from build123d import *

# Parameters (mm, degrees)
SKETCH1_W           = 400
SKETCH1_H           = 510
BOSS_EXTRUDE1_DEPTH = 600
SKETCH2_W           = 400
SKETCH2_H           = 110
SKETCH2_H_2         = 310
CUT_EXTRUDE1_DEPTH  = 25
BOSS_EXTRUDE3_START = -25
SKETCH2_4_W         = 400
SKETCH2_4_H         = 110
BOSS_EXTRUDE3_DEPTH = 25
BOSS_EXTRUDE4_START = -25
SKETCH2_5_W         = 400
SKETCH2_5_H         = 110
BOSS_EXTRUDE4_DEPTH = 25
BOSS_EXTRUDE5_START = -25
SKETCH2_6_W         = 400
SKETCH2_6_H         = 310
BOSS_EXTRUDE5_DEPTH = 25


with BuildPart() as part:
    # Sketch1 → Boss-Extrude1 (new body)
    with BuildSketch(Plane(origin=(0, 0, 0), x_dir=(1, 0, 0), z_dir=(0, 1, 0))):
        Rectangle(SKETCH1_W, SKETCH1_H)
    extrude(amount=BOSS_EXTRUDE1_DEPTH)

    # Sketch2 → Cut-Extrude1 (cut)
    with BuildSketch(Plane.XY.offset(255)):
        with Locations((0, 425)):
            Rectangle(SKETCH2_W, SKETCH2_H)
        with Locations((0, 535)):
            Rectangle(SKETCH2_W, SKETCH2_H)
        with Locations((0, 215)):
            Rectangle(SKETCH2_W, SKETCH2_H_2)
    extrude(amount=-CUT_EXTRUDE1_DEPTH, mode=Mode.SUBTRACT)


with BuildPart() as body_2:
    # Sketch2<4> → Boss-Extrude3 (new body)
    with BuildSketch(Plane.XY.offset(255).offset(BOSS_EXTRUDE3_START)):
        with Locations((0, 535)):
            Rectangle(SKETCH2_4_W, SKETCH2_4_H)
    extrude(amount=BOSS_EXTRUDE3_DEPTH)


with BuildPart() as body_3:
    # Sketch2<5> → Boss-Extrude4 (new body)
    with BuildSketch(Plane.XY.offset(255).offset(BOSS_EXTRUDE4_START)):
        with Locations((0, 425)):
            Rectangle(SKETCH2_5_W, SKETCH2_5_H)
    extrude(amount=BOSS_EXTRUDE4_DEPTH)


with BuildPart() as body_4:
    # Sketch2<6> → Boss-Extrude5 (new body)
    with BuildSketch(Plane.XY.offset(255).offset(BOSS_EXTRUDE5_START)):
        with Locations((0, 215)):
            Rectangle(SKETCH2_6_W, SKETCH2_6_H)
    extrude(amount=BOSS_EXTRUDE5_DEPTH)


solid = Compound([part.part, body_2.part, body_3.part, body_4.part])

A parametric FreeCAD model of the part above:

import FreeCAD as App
import Part
import Sketcher
from FreeCAD import Vector
Q = App.Units.Quantity

doc = App.newDocument("Part")
body = doc.addObject("PartDesign::Body", "Body")

sketch1 = body.newObject("Sketcher::SketchObject", "Sketch")
sketch1.AttachmentSupport = (doc.getObject("XZ_Plane"), [""])
sketch1.MapMode = "FlatFace"
sketch1.addGeometry([
    Part.LineSegment(Vector(-200, -255, 0), Vector(-200, 255, 0)),
    Part.LineSegment(Vector(-200, 255, 0), Vector(200, 255, 0)),
    Part.LineSegment(Vector(200, 255, 0), Vector(200, -255, 0)),
    Part.LineSegment(Vector(200, -255, 0), Vector(-200, -255, 0)),
], False)
sketch1.addConstraint([
    Sketcher.Constraint("Coincident", 0, 2, 1, 1),
    Sketcher.Constraint("Coincident", 1, 2, 2, 1),
    Sketcher.Constraint("Coincident", 2, 2, 3, 1),
    Sketcher.Constraint("Coincident", 3, 2, 0, 1),
    Sketcher.Constraint("Vertical", 0),
    Sketcher.Constraint("Horizontal", 1),
    Sketcher.Constraint("Vertical", 2),
    Sketcher.Constraint("Horizontal", 3),
    Sketcher.Constraint("Symmetric", 0, 2, 2, 2, -1, 1),
    Sketcher.Constraint("DistanceX", 1, 1, 1, 2, Q("400 mm")),
    Sketcher.Constraint("DistanceY", 0, 1, 0, 2, Q("510 mm")),
])
pad1 = body.newObject("PartDesign::Pad", "Pad")
pad1.Profile = sketch1
pad1.Length = 600
pad1.Reversed = True

sketch2 = body.newObject("Sketcher::SketchObject", "Sketch001")
sketch2.AttachmentSupport = (doc.getObject("XY_Plane"), [""])
sketch2.MapMode = "FlatFace"
sketch2.AttachmentOffset = App.Placement(Vector(0, 0, 255), App.Rotation())
sketch2.addGeometry([
    Part.LineSegment(Vector(200, 590, 0), Vector(-200, 590, 0)),
    Part.LineSegment(Vector(-200, 590, 0), Vector(-200, 60, 0)),
    Part.LineSegment(Vector(-200, 60, 0), Vector(200, 60, 0)),
    Part.LineSegment(Vector(200, 60, 0), Vector(200, 590, 0)),
], False)
sketch2.addConstraint([
    Sketcher.Constraint("Coincident", 0, 2, 1, 1),
    Sketcher.Constraint("Coincident", 1, 2, 2, 1),
    Sketcher.Constraint("Coincident", 2, 2, 3, 1),
    Sketcher.Constraint("Coincident", 3, 2, 0, 1),
    Sketcher.Constraint("Horizontal", 0),
    Sketcher.Constraint("Vertical", 1),
    Sketcher.Constraint("Horizontal", 2),
    Sketcher.Constraint("Vertical", 3),
    Sketcher.Constraint("DistanceX", 0, 2, 0, 1, Q("400 mm")),
    Sketcher.Constraint("DistanceY", 1, 2, 1, 1, Q("530 mm")),
    Sketcher.Constraint("DistanceX", 0, 2, -1, 1, Q("200 mm")),
    Sketcher.Constraint("DistanceY", -1, 1, 0, 2, Q("590 mm")),
])
pocket1 = body.newObject("PartDesign::Pocket", "Pocket")
pocket1.Profile = sketch2
pocket1.Length = 25
body2 = doc.addObject("PartDesign::Body", "Body001")

sketch3 = body2.newObject("Sketcher::SketchObject", "Sketch002")
sketch3.AttachmentSupport = (doc.getObject("XY_Plane001"), [""])
sketch3.MapMode = "FlatFace"
sketch3.AttachmentOffset = App.Placement(Vector(0, 0, 230), App.Rotation())
sketch3.addGeometry([
    Part.LineSegment(Vector(-200, 590, 0), Vector(-200, 480, 0)),
    Part.LineSegment(Vector(-200, 480, 0), Vector(200, 480, 0)),
    Part.LineSegment(Vector(200, 480, 0), Vector(200, 590, 0)),
    Part.LineSegment(Vector(200, 590, 0), Vector(-200, 590, 0)),
], False)
sketch3.addConstraint([
    Sketcher.Constraint("Coincident", 0, 2, 1, 1),
    Sketcher.Constraint("Coincident", 1, 2, 2, 1),
    Sketcher.Constraint("Coincident", 2, 2, 3, 1),
    Sketcher.Constraint("Coincident", 3, 2, 0, 1),
    Sketcher.Constraint("Vertical", 0),
    Sketcher.Constraint("Horizontal", 1),
    Sketcher.Constraint("Vertical", 2),
    Sketcher.Constraint("Horizontal", 3),
    Sketcher.Constraint("DistanceX", 1, 1, 1, 2, Q("400 mm")),
    Sketcher.Constraint("DistanceY", 0, 2, 0, 1, Q("110 mm")),
    Sketcher.Constraint("DistanceX", 0, 2, -1, 1, Q("200 mm")),
    Sketcher.Constraint("DistanceY", -1, 1, 0, 2, Q("480 mm")),
])
pad2 = body2.newObject("PartDesign::Pad", "Pad001")
pad2.Profile = sketch3
pad2.Length = 25
body3 = doc.addObject("PartDesign::Body", "Body002")

sketch4 = body3.newObject("Sketcher::SketchObject", "Sketch003")
sketch4.AttachmentSupport = (doc.getObject("XY_Plane002"), [""])
sketch4.MapMode = "FlatFace"
sketch4.AttachmentOffset = App.Placement(Vector(0, 0, 230), App.Rotation())
sketch4.addGeometry([
    Part.LineSegment(Vector(-200, 480, 0), Vector(-200, 370, 0)),
    Part.LineSegment(Vector(-200, 370, 0), Vector(200, 370, 0)),
    Part.LineSegment(Vector(200, 370, 0), Vector(200, 480, 0)),
    Part.LineSegment(Vector(200, 480, 0), Vector(-200, 480, 0)),
], False)
sketch4.addConstraint([
    Sketcher.Constraint("Coincident", 0, 2, 1, 1),
    Sketcher.Constraint("Coincident", 1, 2, 2, 1),
    Sketcher.Constraint("Coincident", 2, 2, 3, 1),
    Sketcher.Constraint("Coincident", 3, 2, 0, 1),
    Sketcher.Constraint("Vertical", 0),
    Sketcher.Constraint("Horizontal", 1),
    Sketcher.Constraint("Vertical", 2),
    Sketcher.Constraint("Horizontal", 3),
    Sketcher.Constraint("DistanceX", 1, 1, 1, 2, Q("400 mm")),
    Sketcher.Constraint("DistanceY", 0, 2, 0, 1, Q("110 mm")),
    Sketcher.Constraint("DistanceX", 0, 2, -1, 1, Q("200 mm")),
    Sketcher.Constraint("DistanceY", -1, 1, 0, 2, Q("370 mm")),
])
pad3 = body3.newObject("PartDesign::Pad", "Pad002")
pad3.Profile = sketch4
pad3.Length = 25
body4 = doc.addObject("PartDesign::Body", "Body003")

sketch5 = body4.newObject("Sketcher::SketchObject", "Sketch004")
sketch5.AttachmentSupport = (doc.getObject("XY_Plane003"), [""])
sketch5.MapMode = "FlatFace"
sketch5.AttachmentOffset = App.Placement(Vector(0, 0, 230), App.Rotation())
sketch5.addGeometry([
    Part.LineSegment(Vector(-200, 370, 0), Vector(-200, 60, 0)),
    Part.LineSegment(Vector(-200, 60, 0), Vector(200, 60, 0)),
    Part.LineSegment(Vector(200, 60, 0), Vector(200, 370, 0)),
    Part.LineSegment(Vector(200, 370, 0), Vector(-200, 370, 0)),
], False)
sketch5.addConstraint([
    Sketcher.Constraint("Coincident", 0, 2, 1, 1),
    Sketcher.Constraint("Coincident", 1, 2, 2, 1),
    Sketcher.Constraint("Coincident", 2, 2, 3, 1),
    Sketcher.Constraint("Coincident", 3, 2, 0, 1),
    Sketcher.Constraint("Vertical", 0),
    Sketcher.Constraint("Horizontal", 1),
    Sketcher.Constraint("Vertical", 2),
    Sketcher.Constraint("Horizontal", 3),
    Sketcher.Constraint("DistanceX", 1, 1, 1, 2, Q("400 mm")),
    Sketcher.Constraint("DistanceY", 0, 2, 0, 1, Q("310 mm")),
    Sketcher.Constraint("DistanceX", 0, 2, -1, 1, Q("200 mm")),
    Sketcher.Constraint("DistanceY", -1, 1, 0, 2, Q("60 mm")),
])
pad4 = body4.newObject("PartDesign::Pad", "Pad003")
pad4.Profile = sketch5
pad4.Length = 25

doc.recompute()
